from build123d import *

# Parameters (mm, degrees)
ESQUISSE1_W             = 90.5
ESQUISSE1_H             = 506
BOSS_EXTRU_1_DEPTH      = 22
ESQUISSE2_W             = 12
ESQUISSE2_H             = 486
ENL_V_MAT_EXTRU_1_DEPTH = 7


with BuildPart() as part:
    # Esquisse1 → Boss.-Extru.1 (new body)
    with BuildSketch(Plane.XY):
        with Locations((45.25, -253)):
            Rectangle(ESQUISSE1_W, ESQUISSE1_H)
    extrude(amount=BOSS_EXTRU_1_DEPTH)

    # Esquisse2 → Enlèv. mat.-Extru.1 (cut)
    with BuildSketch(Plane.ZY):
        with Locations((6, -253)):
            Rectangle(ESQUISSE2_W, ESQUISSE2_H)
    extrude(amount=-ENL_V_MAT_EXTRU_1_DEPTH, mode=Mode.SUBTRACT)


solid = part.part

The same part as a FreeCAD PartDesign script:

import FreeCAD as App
import Part
import Sketcher
Q = App.Units.Quantity

doc = App.newDocument("Part")
params = doc.addObject("Spreadsheet::Sheet", "Params")
for row, (alias, value) in enumerate([
    ("sketch1_height", "506 mm"),
    ("sketch1_width", "90.5 mm"),
    ("pad1_length", "22 mm"),
    ("sketch2_width", "486 mm"),
    ("sketch2_height", "12 mm"),
    ("pocket1_length", "7 mm"),
], start=1):
    params.set(f"A{row}", alias)
    params.set(f"B{row}", "=" + value)
    params.setAlias(f"B{row}", alias)

body = doc.addObject("PartDesign::Body", "Body")

# Sketch on XY plane
sketch1 = doc.addObject("Sketcher::SketchObject", "Sketch")
body.addObject(sketch1)
sketch1.AttachmentSupport = (doc.XY_Plane, [""])
sketch1.MapMode = "FlatFace"
sketch1.addGeometry(Part.LineSegment(App.Vector(0, 0, 0), App.Vector(0, -506, 0)), False)
sketch1.addGeometry(Part.LineSegment(App.Vector(0, -506, 0), App.Vector(90, -506, 0)), False)
sketch1.addGeometry(Part.LineSegment(App.Vector(90, -506, 0), App.Vector(90, 0, 0)), False)
sketch1.addGeometry(Part.LineSegment(App.Vector(90, 0, 0), App.Vector(0, 0, 0)), False)
sketch1.addConstraint(Sketcher.Constraint("Coincident", 0, 2, 1, 1))
sketch1.addConstraint(Sketcher.Constraint("Coincident", 1, 2, 2, 1))
sketch1.addConstraint(Sketcher.Constraint("Coincident", 2, 2, 3, 1))
sketch1.addConstraint(Sketcher.Constraint("Coincident", 3, 2, 0, 1))
sketch1.addConstraint(Sketcher.Constraint("Vertical", 0))
sketch1.addConstraint(Sketcher.Constraint("Horizontal", 1))
sketch1.addConstraint(Sketcher.Constraint("Vertical", 2))
sketch1.addConstraint(Sketcher.Constraint("Horizontal", 3))
sketch1.addConstraint(Sketcher.Constraint("Coincident", 3, 2, -1, 1))
sketch1.addConstraint(Sketcher.Constraint("DistanceY", 0, 2, 0, 1, Q("506 mm")))
sketch1.addConstraint(Sketcher.Constraint("DistanceX", 1, 1, 1, 2, Q("90.5 mm")))
sketch1.setExpression("Constraints[9]", "Params.sketch1_height")
sketch1.setExpression("Constraints[10]", "Params.sketch1_width")
pad1 = doc.addObject("PartDesign::Pad", "Pad")
body.addObject(pad1)
pad1.Profile = sketch1
pad1.setExpression("Length", "Params.pad1_length")

# Sketch on YZ plane
sketch2 = doc.addObject("Sketcher::SketchObject", "Sketch001")
body.addObject(sketch2)
sketch2.AttachmentSupport = (doc.YZ_Plane, [""])
sketch2.MapMode = "FlatFace"
sketch2.addGeometry(Part.LineSegment(App.Vector(-10, 0, 0), App.Vector(-496, 0, 0)), False)
sketch2.addGeometry(Part.LineSegment(App.Vector(-496, 0, 0), App.Vector(-496, 12, 0)), False)
sketch2.addGeometry(Part.LineSegment(App.Vector(-496, 12, 0), App.Vector(-10, 12, 0)), False)
sketch2.addGeometry(Part.LineSegment(App.Vector(-10, 12, 0), App.Vector(-10, 0, 0)), False)
sketch2.addConstraint(Sketcher.Constraint("Coincident", 0, 2, 1, 1))
sketch2.addConstraint(Sketcher.Constraint("Coincident", 1, 2, 2, 1))
sketch2.addConstraint(Sketcher.Constraint("Coincident", 2, 2, 3, 1))
sketch2.addConstraint(Sketcher.Constraint("Coincident", 3, 2, 0, 1))
sketch2.addConstraint(Sketcher.Constraint("Horizontal", 0))
sketch2.addConstraint(Sketcher.Constraint("Vertical", 1))
sketch2.addConstraint(Sketcher.Constraint("Horizontal", 2))
sketch2.addConstraint(Sketcher.Constraint("Vertical", 3))
sketch2.addConstraint(Sketcher.Constraint("PointOnObject", 0, 2, -1))
sketch2.addConstraint(Sketcher.Constraint("DistanceX", 0, 2, 0, 1, Q("486 mm")))
sketch2.addConstraint(Sketcher.Constraint("DistanceY", 1, 1, 1, 2, Q("12 mm")))
sketch2.addConstraint(Sketcher.Constraint("DistanceX", 0, 2, -1, 1, Q("496 mm")))
sketch2.setExpression("Constraints[9]", "Params.sketch2_width")
sketch2.setExpression("Constraints[10]", "Params.sketch2_height")
pocket1 = doc.addObject("PartDesign::Pocket", "Pocket")
body.addObject(pocket1)
pocket1.Profile = sketch2
pocket1.setExpression("Length", "Params.pocket1_length")
pocket1.Reversed = True

doc.recompute()
